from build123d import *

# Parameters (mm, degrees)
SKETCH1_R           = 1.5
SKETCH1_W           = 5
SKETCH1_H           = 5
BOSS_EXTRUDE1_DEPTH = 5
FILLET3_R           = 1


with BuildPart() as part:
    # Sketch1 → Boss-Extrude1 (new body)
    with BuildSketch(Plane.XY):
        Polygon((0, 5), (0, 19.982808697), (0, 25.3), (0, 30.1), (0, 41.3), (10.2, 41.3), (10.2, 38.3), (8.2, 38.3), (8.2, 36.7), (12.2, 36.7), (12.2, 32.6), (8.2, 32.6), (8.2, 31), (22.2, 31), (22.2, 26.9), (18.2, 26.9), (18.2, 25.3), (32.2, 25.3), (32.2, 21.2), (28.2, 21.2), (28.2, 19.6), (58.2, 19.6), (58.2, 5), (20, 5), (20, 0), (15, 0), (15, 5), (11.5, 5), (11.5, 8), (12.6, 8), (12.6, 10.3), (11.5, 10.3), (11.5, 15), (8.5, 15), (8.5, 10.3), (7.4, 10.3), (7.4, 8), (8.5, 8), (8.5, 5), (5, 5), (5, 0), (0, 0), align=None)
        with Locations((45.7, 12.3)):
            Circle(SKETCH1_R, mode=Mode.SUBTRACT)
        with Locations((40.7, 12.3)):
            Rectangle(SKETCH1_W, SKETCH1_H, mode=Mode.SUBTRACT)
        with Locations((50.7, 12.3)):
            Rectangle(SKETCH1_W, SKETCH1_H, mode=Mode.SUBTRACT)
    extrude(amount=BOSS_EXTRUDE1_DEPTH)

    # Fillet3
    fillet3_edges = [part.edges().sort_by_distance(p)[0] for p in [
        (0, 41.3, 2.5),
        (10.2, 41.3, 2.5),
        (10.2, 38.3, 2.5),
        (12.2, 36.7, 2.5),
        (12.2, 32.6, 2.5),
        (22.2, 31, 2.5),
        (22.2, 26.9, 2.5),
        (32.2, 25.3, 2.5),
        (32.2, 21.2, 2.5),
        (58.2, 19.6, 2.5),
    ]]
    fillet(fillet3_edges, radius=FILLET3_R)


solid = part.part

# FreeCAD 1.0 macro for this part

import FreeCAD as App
import Part
import Sketcher
from FreeCAD import Vector


def edges_at(feature, points):
    """Names of the edges that pass closest to the given points."""
    edges = feature.Shape.Edges
    near = lambda p: min(range(len(edges)), key=lambda i: edges[i].distToShape(Part.Vertex(*p))[0])
    return sorted({f"Edge{near(p) + 1}" for p in points})

doc = App.newDocument("Part")
body = doc.addObject("PartDesign::Body", "Body")

sketch1 = body.newObject("Sketcher::SketchObject", "Sketch")
sketch1.AttachmentSupport = (doc.getObject("XY_Plane"), [""])
sketch1.MapMode = "FlatFace"
sketch1.addGeometry(Part.LineSegment(Vector(0, 41.3, 0), Vector(0, 0, 0)), False)
sketch1.addGeometry(Part.LineSegment(Vector(0, 0, 0), Vector(5, 0, 0)), False)
sketch1.addGeometry(Part.LineSegment(Vector(5, 0, 0), Vector(5, 5, 0)), False)
sketch1.addGeometry(Part.LineSegment(Vector(5, 5, 0), Vector(8.5, 5, 0)), False)
sketch1.addGeometry(Part.LineSegment(Vector(8.5, 5, 0), Vector(8.5, 8, 0)), False)
sketch1.addGeometry(Part.LineSegment(Vector(8.5, 8, 0), Vector(7.4, 8, 0)), False)
sketch1.addGeometry(Part.LineSegment(Vector(7.4, 8, 0), Vector(7.4, 10.3, 0)), False)
sketch1.addGeometry(Part.LineSegment(Vector(7.4, 10.3, 0), Vector(8.5, 10.3, 0)), False)
sketch1.addGeometry(Part.LineSegment(Vector(8.5, 10.3, 0), Vector(8.5, 15, 0)), False)
sketch1.addGeometry(Part.LineSegment(Vector(8.5, 15, 0), Vector(11.5, 15, 0)), False)
sketch1.addGeometry(Part.LineSegment(Vector(11.5, 15, 0), Vector(11.5, 10.3, 0)), False)
sketch1.addGeometry(Part.LineSegment(Vector(11.5, 10.3, 0), Vector(12.6, 10.3, 0)), False)
sketch1.addGeometry(Part.LineSegment(Vector(12.6, 10.3, 0), Vector(12.6, 8, 0)), False)
sketch1.addGeometry(Part.LineSegment(Vector(12.6, 8, 0), Vector(11.5, 8, 0)), False)
sketch1.addGeometry(Part.LineSegment(Vector(11.5, 8, 0), Vector(11.5, 5, 0)), False)
sketch1.addGeometry(Part.LineSegment(Vector(11.5, 5, 0), Vector(15, 5, 0)), False)
sketch1.addGeometry(Part.LineSegment(Vector(15, 5, 0), Vector(15, 0, 0)), False)
sketch1.addGeometry(Part.LineSegment(Vector(15, 0, 0), Vector(20, 0, 0)), False)
sketch1.addGeometry(Part.LineSegment(Vector(20, 0, 0), Vector(20, 5, 0)), False)
sketch1.addGeometry(Part.LineSegment(Vector(20, 5, 0), Vector(58.2, 5, 0)), False)
sketch1.addGeometry(Part.LineSegment(Vector(58.2, 5, 0), Vector(58.2, 19.6, 0)), False)
sketch1.addGeometry(Part.LineSegment(Vector(58.2, 19.6, 0), Vector(28.2, 19.6, 0)), False)
sketch1.addGeometry(Part.LineSegment(Vector(28.2, 19.6, 0), Vector(28.2, 21.2, 0)), False)
sketch1.addGeometry(Part.LineSegment(Vector(28.2, 21.2, 0), Vector(32.2, 21.2, 0)), False)
sketch1.addGeometry(Part.LineSegment(Vector(32.2, 21.2, 0), Vector(32.2, 25.3, 0)), False)
sketch1.addGeometry(Part.LineSegment(Vector(32.2, 25.3, 0), Vector(18.2, 25.3, 0)), False)
sketch1.addGeometry(Part.LineSegment(Vector(18.2, 25.3, 0), Vector(18.2, 26.9, 0)), False)
sketch1.addGeometry(Part.LineSegment(Vector(18.2, 26.9, 0), Vector(22.2, 26.9, 0)), False)
sketch1.addGeometry(Part.LineSegment(Vector(22.2, 26.9, 0), Vector(22.2, 31, 0)), False)
sketch1.addGeometry(Part.LineSegment(Vector(22.2, 31, 0), Vector(8.2, 31, 0)), False)
sketch1.addGeometry(Part.LineSegment(Vector(8.2, 31, 0), Vector(8.2, 32.6, 0)), False)
sketch1.addGeometry(Part.LineSegment(Vector(8.2, 32.6, 0), Vector(12.2, 32.6, 0)), False)
sketch1.addGeometry(Part.LineSegment(Vector(12.2, 32.6, 0), Vector(12.2, 36.7, 0)), False)
sketch1.addGeometry(Part.LineSegment(Vector(12.2, 36.7, 0), Vector(8.2, 36.7, 0)), False)
sketch1.addGeometry(Part.LineSegment(Vector(8.2, 36.7, 0), Vector(8.2, 38.3, 0)), False)
sketch1.addGeometry(Part.LineSegment(Vector(8.2, 38.3, 0), Vector(10.2, 38.3, 0)), False)
sketch1.addGeometry(Part.LineSegment(Vector(10.2, 38.3, 0), Vector(10.2, 41.3, 0)), False)
sketch1.addGeometry(Part.LineSegment(Vector(10.2, 41.3, 0), Vector(0, 41.3, 0)), False)
sketch1.addGeometry(Part.LineSegment(Vector(48.2, 9.8, 0), Vector(48.2, 14.8, 0)), False)
sketch1.addGeometry(Part.LineSegment(Vector(48.2, 14.8, 0), Vector(53.2, 14.8, 0)), False)
sketch1.addGeometry(Part.LineSegment(Vector(53.2, 14.8, 0), Vector(53.2, 9.8, 0)), False)
sketch1.addGeometry(Part.LineSegment(Vector(53.2, 9.8, 0), Vector(48.2, 9.8, 0)), False)
sketch1.addGeometry(Part.Circle(Vector(45.7, 12.3, 0), Vector(0, 0, 1), 1.5), False)
sketch1.addGeometry(Part.LineSegment(Vector(38.2, 9.8, 0), Vector(38.2, 14.8, 0)), False)
sketch1.addGeometry(Part.LineSegment(Vector(38.2, 14.8, 0), Vector(43.2, 14.8, 0)), False)
sketch1.addGeometry(Part.LineSegment(Vector(43.2, 14.8, 0), Vector(43.2, 9.8, 0)), False)
sketch1.addGeometry(Part.LineSegment(Vector(43.2, 9.8, 0), Vector(38.2, 9.8, 0)), False)
sketch1.addConstraint(Sketcher.Constraint("Coincident", 0, 2, 1, 1))
sketch1.addConstraint(Sketcher.Constraint("Coincident", 1, 2, 2, 1))
sketch1.addConstraint(Sketcher.Constraint("Coincident", 2, 2, 3, 1))
sketch1.addConstraint(Sketcher.Constraint("Coincident", 3, 2, 4, 1))
sketch1.addConstraint(Sketcher.Constraint("Coincident", 4, 2, 5, 1))
sketch1.addConstraint(Sketcher.Constraint("Coincident", 5, 2, 6, 1))
sketch1.addConstraint(Sketcher.Constraint("Coincident", 6, 2, 7, 1))
sketch1.addConstraint(Sketcher.Constraint("Coincident", 7, 2, 8, 1))
sketch1.addConstraint(Sketcher.Constraint("Coincident", 8, 2, 9, 1))
sketch1.addConstraint(Sketcher.Constraint("Coincident", 9, 2, 10, 1))
sketch1.addConstraint(Sketcher.Constraint("Coincident", 10, 2, 11, 1))
sketch1.addConstraint(Sketcher.Constraint("Coincident", 11, 2, 12, 1))
sketch1.addConstraint(Sketcher.Constraint("Coincident", 12, 2, 13, 1))
sketch1.addConstraint(Sketcher.Constraint("Coincident", 13, 2, 14, 1))
sketch1.addConstraint(Sketcher.Constraint("Coincident", 14, 2, 15, 1))
sketch1.addConstraint(Sketcher.Constraint("Coincident", 15, 2, 16, 1))
sketch1.addConstraint(Sketcher.Constraint("Coincident", 16, 2, 17, 1))
sketch1.addConstraint(Sketcher.Constraint("Coincident", 17, 2, 18, 1))
sketch1.addConstraint(Sketcher.Constraint("Coincident", 18, 2, 19, 1))
sketch1.addConstraint(Sketcher.Constraint("Coincident", 19, 2, 20, 1))
sketch1.addConstraint(Sketcher.Constraint("Coincident", 20, 2, 21, 1))
sketch1.addConstraint(Sketcher.Constraint("Coincident", 21, 2, 22, 1))
sketch1.addConstraint(Sketcher.Constraint("Coincident", 22, 2, 23, 1))
sketch1.addConstraint(Sketcher.Constraint("Coincident", 23, 2, 24, 1))
sketch1.addConstraint(Sketcher.Constraint("Coincident", 24, 2, 25, 1))
sketch1.addConstraint(Sketcher.Constraint("Coincident", 25, 2, 26, 1))
sketch1.addConstraint(Sketcher.Constraint("Coincident", 26, 2, 27, 1))
sketch1.addConstraint(Sketcher.Constraint("Coincident", 27, 2, 28, 1))
sketch1.addConstraint(Sketcher.Constraint("Coincident", 28, 2, 29, 1))
sketch1.addConstraint(Sketcher.Constraint("Coincident", 29, 2, 30, 1))
sketch1.addConstraint(Sketcher.Constraint("Coincident", 30, 2, 31, 1))
sketch1.addConstraint(Sketcher.Constraint("Coincident", 31, 2, 32, 1))
sketch1.addConstraint(Sketcher.Constraint("Coincident", 32, 2, 33, 1))
sketch1.addConstraint(Sketcher.Constraint("Coincident", 33, 2, 34, 1))
sketch1.addConstraint(Sketcher.Constraint("Coincident", 34, 2, 35, 1))
sketch1.addConstraint(Sketcher.Constraint("Coincident", 35, 2, 36, 1))
sketch1.addConstraint(Sketcher.Constraint("Coincident", 36, 2, 37, 1))
sketch1.addConstraint(Sketcher.Constraint("Coincident", 37, 2, 0, 1))
sketch1.addConstraint(Sketcher.Constraint("Coincident", 38, 2, 39, 1))
sketch1.addConstraint(Sketcher.Constraint("Coincident", 39, 2, 40, 1))
sketch1.addConstraint(Sketcher.Constraint("Coincident", 40, 2, 41, 1))
sketch1.addConstraint(Sketcher.Constraint("Coincident", 41, 2, 38, 1))
sketch1.addConstraint(Sketcher.Constraint("Coincident", 43, 2, 44, 1))
sketch1.addConstraint(Sketcher.Constraint("Coincident", 44, 2, 45, 1))
sketch1.addConstraint(Sketcher.Constraint("Coincident", 45, 2, 46, 1))
sketch1.addConstraint(Sketcher.Constraint("Coincident", 46, 2, 43, 1))
sketch1.addConstraint(Sketcher.Constraint("Vertical", 0))
sketch1.addConstraint(Sketcher.Constraint("Horizontal", 1))
sketch1.addConstraint(Sketcher.Constraint("Vertical", 2))
sketch1.addConstraint(Sketcher.Constraint("Horizontal", 3))
sketch1.addConstraint(Sketcher.Constraint("Vertical", 4))
sketch1.addConstraint(Sketcher.Constraint("Horizontal", 5))
sketch1.addConstraint(Sketcher.Constraint("Vertical", 6))
sketch1.addConstraint(Sketcher.Constraint("Horizontal", 7))
sketch1.addConstraint(Sketcher.Constraint("Vertical", 8))
sketch1.addConstraint(Sketcher.Constraint("Horizontal", 9))
sketch1.addConstraint(Sketcher.Constraint("Vertical", 10))
sketch1.addConstraint(Sketcher.Constraint("Horizontal", 11))
sketch1.addConstraint(Sketcher.Constraint("Vertical", 12))
sketch1.addConstraint(Sketcher.Constraint("Horizontal", 13))
sketch1.addConstraint(Sketcher.Constraint("Vertical", 14))
sketch1.addConstraint(Sketcher.Constraint("Horizontal", 15))
sketch1.addConstraint(Sketcher.Constraint("Vertical", 16))
sketch1.addConstraint(Sketcher.Constraint("Horizontal", 17))
sketch1.addConstraint(Sketcher.Constraint("Vertical", 18))
sketch1.addConstraint(Sketcher.Constraint("Horizontal", 19))
sketch1.addConstraint(Sketcher.Constraint("Vertical", 20))
sketch1.addConstraint(Sketcher.Constraint("Horizontal", 21))
sketch1.addConstraint(Sketcher.Constraint("Vertical", 22))
sketch1.addConstraint(Sketcher.Constraint("Horizontal", 23))
sketch1.addConstraint(Sketcher.Constraint("Vertical", 24))
sketch1.addConstraint(Sketcher.Constraint("Horizontal", 25))
sketch1.addConstraint(Sketcher.Constraint("Vertical", 26))
sketch1.addConstraint(Sketcher.Constraint("Horizontal", 27))
sketch1.addConstraint(Sketcher.Constraint("Vertical", 28))
sketch1.addConstraint(Sketcher.Constraint("Horizontal", 29))
sketch1.addConstraint(Sketcher.Constraint("Vertical", 30))
sketch1.addConstraint(Sketcher.Constraint("Horizontal", 31))
sketch1.addConstraint(Sketcher.Constraint("Vertical", 32))
sketch1.addConstraint(Sketcher.Constraint("Horizontal", 33))
sketch1.addConstraint(Sketcher.Constraint("Vertical", 34))
sketch1.addConstraint(Sketcher.Constraint("Horizontal", 35))
sketch1.addConstraint(Sketcher.Constraint("Vertical", 36))
sketch1.addConstraint(Sketcher.Constraint("Horizontal", 37))
sketch1.addConstraint(Sketcher.Constraint("Vertical", 38))
sketch1.addConstraint(Sketcher.Constraint("Horizontal", 39))
sketch1.addConstraint(Sketcher.Constraint("Vertical", 40))
sketch1.addConstraint(Sketcher.Constraint("Horizontal", 41))
sketch1.addConstraint(Sketcher.Constraint("Vertical", 43))
sketch1.addConstraint(Sketcher.Constraint("Horizontal", 44))
sketch1.addConstraint(Sketcher.Constraint("Vertical", 45))
sketch1.addConstraint(Sketcher.Constraint("Horizontal", 46))
sketch1.addConstraint(Sketcher.Constraint("Coincident", 0, 2, -1, 1))
sketch1.addConstraint(Sketcher.Constraint("PointOnObject", 16, 2, -1))
sketch1.addConstraint(Sketcher.Constraint("Horizontal", 7, 2, 10, 2))
sketch1.addConstraint(Sketcher.Constraint("Horizontal", 5, 2, 12, 2))
sketch1.addConstraint(Sketcher.Constraint("Horizontal", 3, 2, 14, 2))
sketch1.addConstraint(Sketcher.Constraint("Horizontal", 15, 2, 18, 2))
sketch1.addConstraint(Sketcher.Constraint("Horizontal", 39, 2, 43, 2))
sketch1.addConstraint(Sketcher.Constraint("Horizontal", 41, 2, 45, 2))
sketch1.addConstraint(Sketcher.Constraint("Vertical", 4, 2, 7, 2))
sketch1.addConstraint(Sketcher.Constraint("Vertical", 10, 2, 13, 2))
sketch1.addConstraint(Sketcher.Constraint("Vertical", 30, 2, 33, 2))
sketch1.addConstraint(Sketcher.Constraint("Equal", 7, 11))
sketch1.addConstraint(Sketcher.Constraint("Equal", 3, 15))
sketch1.addConstraint(Sketcher.Constraint("Equal", 1, 17))
sketch1.addConstraint(Sketcher.Constraint("Equal", 23, 27))
sketch1.addConstraint(Sketcher.Constraint("Equal", 25, 29))
sketch1.addConstraint(Sketcher.Constraint("Equal", 27, 31))
sketch1.addConstraint(Sketcher.Constraint("Equal", 17, 39))
sketch1.addConstraint(Sketcher.Constraint("Equal", 41, 44))
sketch1.addConstraint(Sketcher.Constraint("Equal", 46, 2))
sketch1.addConstraint(Sketcher.Constraint("Equal", 9, 4))
sketch1.addConstraint(Sketcher.Constraint("Equal", 22, 26))
sketch1.addConstraint(Sketcher.Constraint("Equal", 24, 28))
sketch1.addConstraint(Sketcher.Constraint("Equal", 26, 30))
sketch1.addConstraint(Sketcher.Constraint("Equal", 28, 32))
sketch1.addConstraint(Sketcher.Constraint("Equal", 30, 34))
sketch1.addConstraint(Sketcher.Constraint("Equal", 14, 36))
sketch1.addConstraint(Sketcher.Constraint("Equal", 18, 38))
sketch1.addConstraint(Sketcher.Constraint("Diameter", 42, 3.0))
sketch1.addConstraint(Sketcher.Constraint("DistanceX", 1, 1, 1, 2, 5.0))
sketch1.addConstraint(Sketcher.Constraint("DistanceX", 9, 1, 9, 2, 3.0))
sketch1.addConstraint(Sketcher.Constraint("DistanceX", 21, 2, 21, 1, 30.0))
sketch1.addConstraint(Sketcher.Constraint("DistanceX", 23, 1, 23, 2, 4.0))
sketch1.addConstraint(Sketcher.Constraint("DistanceX", 25, 2, 25, 1, 14.0))
sketch1.addConstraint(Sketcher.Constraint("DistanceX", 35, 1, 35, 2, 2.0))
sketch1.addConstraint(Sketcher.Constraint("DistanceX", 3, 1, 3, 2, 3.5))
sketch1.addConstraint(Sketcher.Constraint("DistanceX", 5, 2, 5, 1, 1.1))
sketch1.addConstraint(Sketcher.Constraint("DistanceX", 19, 1, 19, 2, 38.2))
sketch1.addConstraint(Sketcher.Constraint("DistanceY", 0, 2, 0, 1, 41.3))
sketch1.addConstraint(Sketcher.Constraint("DistanceY", 6, 1, 6, 2, 2.3))
sketch1.addConstraint(Sketcher.Constraint("DistanceY", 8, 1, 8, 2, 4.7))
sketch1.addConstraint(Sketcher.Constraint("DistanceY", 20, 1, 20, 2, 14.6))
sketch1.addConstraint(Sketcher.Constraint("DistanceY", 22, 1, 22, 2, 1.6))
sketch1.addConstraint(Sketcher.Constraint("DistanceY", 42, 3, 24, 2, 13.0))
sketch1.addConstraint(Sketcher.Constraint("DistanceX", 38, 2, 20, 2, 10.0))
sketch1.addConstraint(Sketcher.Constraint("DistanceX", 23, 2, 43, 2, 6.0))
sketch1.addConstraint(Sketcher.Constraint("DistanceX", -1, 1, 42, 3, 45.7))
sketch1.addConstraint(Sketcher.Constraint("DistanceY", -1, 1, 38, 2, 14.8))
pad1 = body.newObject("PartDesign::Pad", "Pad")
pad1.Profile = sketch1
pad1.Length = 5
doc.recompute()

fillet = body.newObject("PartDesign::Fillet", "Fillet")
fillet.Base = (pad1, edges_at(pad1, [
    (0, 41.3, 2.5),
    (10.2, 41.3, 2.5),
    (10.2, 38.3, 2.5),
    (12.2, 36.7, 2.5),
    (12.2, 32.6, 2.5),
    (22.2, 31, 2.5),
    (22.2, 26.9, 2.5),
    (32.2, 25.3, 2.5),
    (32.2, 21.2, 2.5),
    (58.2, 19.6, 2.5),
]))
fillet.Radius = 1

doc.recompute()
